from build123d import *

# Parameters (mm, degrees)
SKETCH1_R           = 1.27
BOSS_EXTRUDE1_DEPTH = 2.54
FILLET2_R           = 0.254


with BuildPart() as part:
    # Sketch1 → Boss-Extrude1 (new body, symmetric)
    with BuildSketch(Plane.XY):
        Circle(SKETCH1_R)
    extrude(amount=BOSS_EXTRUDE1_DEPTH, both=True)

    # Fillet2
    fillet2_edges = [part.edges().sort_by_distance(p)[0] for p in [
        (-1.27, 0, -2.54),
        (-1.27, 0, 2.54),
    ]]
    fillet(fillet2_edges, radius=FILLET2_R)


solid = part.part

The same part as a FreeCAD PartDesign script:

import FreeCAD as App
import Part
import Sketcher

V = App.Vector
Q = App.Units.Quantity


def edges_at(feature, points):
    """Names of the edges that pass closest to the given points."""
    edges = feature.Shape.Edges
    near = lambda p: min(range(len(edges)), key=lambda i: edges[i].distToShape(Part.Vertex(*p))[0])
    return sorted({f"Edge{near(p) + 1}" for p in points})

doc = App.newDocument("Part")
body = doc.addObject("PartDesign::Body", "Body")

sketch1 = body.newObject("Sketcher::SketchObject", "Sketch")
sketch1.AttachmentSupport = (doc.getObject("XY_Plane"), [""])
sketch1.MapMode = "FlatFace"
sketch1.addGeometry(Part.Circle(V(0, 0, 0), V(0, 0, 1), 1.3), False)
sketch1.addConstraint([
    Sketcher.Constraint("Coincident", 0, 3, -1, 1),
    Sketcher.Constraint("Diameter", 0, Q("0.1 in")),
])
pad1 = body.newObject("PartDesign::Pad", "Pad")
pad1.Profile = sketch1
pad1.Length = Q("0.2 in")
pad1.Midplane = True
doc.recompute()

fillet = body.newObject("PartDesign::Fillet", "Fillet")
fillet.Base = (pad1, edges_at(pad1, [(-1.27, 0, -2.54), (-1.27, 0, 2.54)]))
fillet.Radius = Q("0.01 in")

doc.recompute()
